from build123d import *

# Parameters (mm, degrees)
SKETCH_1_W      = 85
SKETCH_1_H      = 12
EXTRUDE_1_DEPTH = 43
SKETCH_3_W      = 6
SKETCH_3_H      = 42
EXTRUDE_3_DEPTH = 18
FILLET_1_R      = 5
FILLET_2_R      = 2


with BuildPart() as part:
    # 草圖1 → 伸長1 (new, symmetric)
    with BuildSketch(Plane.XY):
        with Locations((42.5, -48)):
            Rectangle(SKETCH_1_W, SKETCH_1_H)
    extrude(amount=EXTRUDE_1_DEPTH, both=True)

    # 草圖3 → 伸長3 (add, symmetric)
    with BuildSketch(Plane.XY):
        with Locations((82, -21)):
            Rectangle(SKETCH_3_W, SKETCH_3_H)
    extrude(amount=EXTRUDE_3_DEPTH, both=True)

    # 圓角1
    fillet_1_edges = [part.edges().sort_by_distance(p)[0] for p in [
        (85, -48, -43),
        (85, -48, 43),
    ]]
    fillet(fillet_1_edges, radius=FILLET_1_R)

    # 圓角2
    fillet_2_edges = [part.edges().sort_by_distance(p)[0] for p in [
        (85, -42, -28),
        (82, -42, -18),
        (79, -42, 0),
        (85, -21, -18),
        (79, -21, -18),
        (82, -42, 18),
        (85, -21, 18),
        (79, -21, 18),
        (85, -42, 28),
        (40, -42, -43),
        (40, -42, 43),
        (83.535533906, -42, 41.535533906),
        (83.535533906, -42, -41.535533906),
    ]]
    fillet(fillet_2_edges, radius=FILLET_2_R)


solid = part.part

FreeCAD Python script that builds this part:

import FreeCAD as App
import Part
import Sketcher


def edges_at(feature, points):
    """Names of the edges that pass closest to the given points."""
    edges = feature.Shape.Edges
    near = lambda p: min(range(len(edges)), key=lambda i: edges[i].distToShape(Part.Vertex(*p))[0])
    return sorted({f"Edge{near(p) + 1}" for p in points})

doc = App.newDocument("Part")
body = doc.addObject("PartDesign::Body", "Body")

# Sketch on XY plane
sketch1 = body.newObject("Sketcher::SketchObject", "Sketch")
sketch1.AttachmentSupport = (doc.getObject("XY_Plane"), [""])
sketch1.MapMode = "FlatFace"
sketch1.addGeometry(Part.LineSegment(App.Vector(0, -42, 0), App.Vector(0, -54, 0)), False)
sketch1.addGeometry(Part.LineSegment(App.Vector(0, -54, 0), App.Vector(85, -54, 0)), False)
sketch1.addGeometry(Part.LineSegment(App.Vector(85, -54, 0), App.Vector(85, -42, 0)), False)
sketch1.addGeometry(Part.LineSegment(App.Vector(85, -42, 0), App.Vector(0, -42, 0)), False)
sketch1.addConstraint(Sketcher.Constraint("Coincident", 0, 2, 1, 1))
sketch1.addConstraint(Sketcher.Constraint("Coincident", 1, 2, 2, 1))
sketch1.addConstraint(Sketcher.Constraint("Coincident", 2, 2, 3, 1))
sketch1.addConstraint(Sketcher.Constraint("Coincident", 3, 2, 0, 1))
sketch1.addConstraint(Sketcher.Constraint("Vertical", 0))
sketch1.addConstraint(Sketcher.Constraint("Horizontal", 1))
sketch1.addConstraint(Sketcher.Constraint("Vertical", 2))
sketch1.addConstraint(Sketcher.Constraint("Horizontal", 3))
sketch1.addConstraint(Sketcher.Constraint("PointOnObject", 0, 2, -2))
sketch1.addConstraint(Sketcher.Constraint("DistanceX", 1, 1, 1, 2, 85.0))
sketch1.addConstraint(Sketcher.Constraint("DistanceY", 0, 2, 0, 1, 12.0))
sketch1.addConstraint(Sketcher.Constraint("DistanceY", 0, 2, -1, 1, 54.0))
pad1 = body.newObject("PartDesign::Pad", "Pad")
pad1.Profile = sketch1
pad1.Length = 86
pad1.Midplane = True

# Sketch on XY plane
sketch2 = body.newObject("Sketcher::SketchObject", "Sketch001")
sketch2.AttachmentSupport = (doc.getObject("XY_Plane"), [""])
sketch2.MapMode = "FlatFace"
sketch2.addGeometry(Part.LineSegment(App.Vector(79, 0, 0), App.Vector(79, -42, 0)), False)
sketch2.addGeometry(Part.LineSegment(App.Vector(79, -42, 0), App.Vector(85, -42, 0)), False)
sketch2.addGeometry(Part.LineSegment(App.Vector(85, -42, 0), App.Vector(85, 0, 0)), False)
sketch2.addGeometry(Part.LineSegment(App.Vector(85, 0, 0), App.Vector(79, 0, 0)), False)
sketch2.addConstraint(Sketcher.Constraint("Coincident", 0, 2, 1, 1))
sketch2.addConstraint(Sketcher.Constraint("Coincident", 1, 2, 2, 1))
sketch2.addConstraint(Sketcher.Constraint("Coincident", 2, 2, 3, 1))
sketch2.addConstraint(Sketcher.Constraint("Coincident", 3, 2, 0, 1))
sketch2.addConstraint(Sketcher.Constraint("Vertical", 0))
sketch2.addConstraint(Sketcher.Constraint("Horizontal", 1))
sketch2.addConstraint(Sketcher.Constraint("Vertical", 2))
sketch2.addConstraint(Sketcher.Constraint("Horizontal", 3))
sketch2.addConstraint(Sketcher.Constraint("PointOnObject", 2, 2, -1))
sketch2.addConstraint(Sketcher.Constraint("DistanceX", 1, 1, 1, 2, 6.0))
sketch2.addConstraint(Sketcher.Constraint("DistanceY", 0, 2, 0, 1, 42.0))
sketch2.addConstraint(Sketcher.Constraint("DistanceX", -1, 1, 0, 2, 79.0))
pad2 = body.newObject("PartDesign::Pad", "Pad001")
pad2.Profile = sketch2
pad2.Length = 36
pad2.Midplane = True
doc.recompute()

fillet = body.newObject("PartDesign::Fillet", "Fillet")
fillet.Base = (pad2, edges_at(pad2, [(85, -48, -43), (85, -48, 43)]))
fillet.Radius = 5
doc.recompute()

fillet2 = body.newObject("PartDesign::Fillet", "Fillet001")
fillet2.Base = (fillet, edges_at(fillet, [
    (85, -42, -28),
    (82, -42, -18),
    (79, -42, 0),
    (85, -21, -18),
    (79, -21, -18),
    (82, -42, 18),
    (85, -21, 18),
    (79, -21, 18),
    (85, -42, 28),
    (40, -42, -43),
    (40, -42, 43),
    (83.536, -42, 41.536),
    (83.536, -42, -41.536),
]))
fillet2.Radius = 2

doc.recompute()
